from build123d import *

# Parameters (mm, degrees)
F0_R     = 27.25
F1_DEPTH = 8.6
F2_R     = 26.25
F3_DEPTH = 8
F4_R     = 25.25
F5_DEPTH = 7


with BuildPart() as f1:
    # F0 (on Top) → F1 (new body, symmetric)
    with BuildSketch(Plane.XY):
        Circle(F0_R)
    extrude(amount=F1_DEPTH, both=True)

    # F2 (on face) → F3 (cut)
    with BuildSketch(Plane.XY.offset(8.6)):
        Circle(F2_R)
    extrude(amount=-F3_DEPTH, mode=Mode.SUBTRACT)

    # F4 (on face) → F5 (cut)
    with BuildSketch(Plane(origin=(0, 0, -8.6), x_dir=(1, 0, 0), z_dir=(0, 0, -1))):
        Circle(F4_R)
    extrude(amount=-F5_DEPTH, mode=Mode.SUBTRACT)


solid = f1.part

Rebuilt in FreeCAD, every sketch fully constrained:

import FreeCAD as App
import Part
import Sketcher

doc = App.newDocument("Part")
body = doc.addObject("PartDesign::Body", "Body")

# Sketch on XY plane
sketch1 = doc.addObject("Sketcher::SketchObject", "Sketch")
body.addObject(sketch1)
sketch1.AttachmentSupport = (doc.XY_Plane, [""])
sketch1.MapMode = "FlatFace"
sketch1.addGeometry(Part.Circle(App.Vector(0, 0, 0), App.Vector(0, 0, 1), 27.25), False)
sketch1.addConstraint([
    Sketcher.Constraint("Coincident", 0, 3, -1, 1),
    Sketcher.Constraint("Diameter", 0, 54.5),
])
pad1 = doc.addObject("PartDesign::Pad", "Pad")
body.addObject(pad1)
pad1.Profile = sketch1
pad1.Length = 17.2
pad1.Midplane = True

# Sketch on XY plane
sketch2 = doc.addObject("Sketcher::SketchObject", "Sketch001")
body.addObject(sketch2)
sketch2.AttachmentSupport = (doc.XY_Plane, [""])
sketch2.MapMode = "FlatFace"
sketch2.AttachmentOffset = App.Placement(App.Vector(0, 0, 8.6), App.Rotation())
sketch2.addGeometry(Part.Circle(App.Vector(0, 0, 0), App.Vector(0, 0, 1), 26.25), False)
sketch2.addConstraint([
    Sketcher.Constraint("Coincident", 0, 3, -1, 1),
    Sketcher.Constraint("Diameter", 0, 52.5),
])
pocket1 = doc.addObject("PartDesign::Pocket", "Pocket")
body.addObject(pocket1)
pocket1.Profile = sketch2
pocket1.Length = 8

# Sketch on XY plane
sketch3 = doc.addObject("Sketcher::SketchObject", "Sketch002")
body.addObject(sketch3)
sketch3.AttachmentSupport = (doc.XY_Plane, [""])
sketch3.MapMode = "FlatFace"
sketch3.AttachmentOffset = App.Placement(App.Vector(0, 0, -8.6), App.Rotation())
sketch3.addGeometry(Part.Circle(App.Vector(0, 0, 0), App.Vector(0, 0, 1), 25.25), False)
sketch3.addConstraint([
    Sketcher.Constraint("Coincident", 0, 3, -1, 1),
    Sketcher.Constraint("Diameter", 0, 50.5),
])
pocket2 = doc.addObject("PartDesign::Pocket", "Pocket001")
body.addObject(pocket2)
pocket2.Profile = sketch3
pocket2.Length = 7
pocket2.Reversed = True

doc.recompute()
